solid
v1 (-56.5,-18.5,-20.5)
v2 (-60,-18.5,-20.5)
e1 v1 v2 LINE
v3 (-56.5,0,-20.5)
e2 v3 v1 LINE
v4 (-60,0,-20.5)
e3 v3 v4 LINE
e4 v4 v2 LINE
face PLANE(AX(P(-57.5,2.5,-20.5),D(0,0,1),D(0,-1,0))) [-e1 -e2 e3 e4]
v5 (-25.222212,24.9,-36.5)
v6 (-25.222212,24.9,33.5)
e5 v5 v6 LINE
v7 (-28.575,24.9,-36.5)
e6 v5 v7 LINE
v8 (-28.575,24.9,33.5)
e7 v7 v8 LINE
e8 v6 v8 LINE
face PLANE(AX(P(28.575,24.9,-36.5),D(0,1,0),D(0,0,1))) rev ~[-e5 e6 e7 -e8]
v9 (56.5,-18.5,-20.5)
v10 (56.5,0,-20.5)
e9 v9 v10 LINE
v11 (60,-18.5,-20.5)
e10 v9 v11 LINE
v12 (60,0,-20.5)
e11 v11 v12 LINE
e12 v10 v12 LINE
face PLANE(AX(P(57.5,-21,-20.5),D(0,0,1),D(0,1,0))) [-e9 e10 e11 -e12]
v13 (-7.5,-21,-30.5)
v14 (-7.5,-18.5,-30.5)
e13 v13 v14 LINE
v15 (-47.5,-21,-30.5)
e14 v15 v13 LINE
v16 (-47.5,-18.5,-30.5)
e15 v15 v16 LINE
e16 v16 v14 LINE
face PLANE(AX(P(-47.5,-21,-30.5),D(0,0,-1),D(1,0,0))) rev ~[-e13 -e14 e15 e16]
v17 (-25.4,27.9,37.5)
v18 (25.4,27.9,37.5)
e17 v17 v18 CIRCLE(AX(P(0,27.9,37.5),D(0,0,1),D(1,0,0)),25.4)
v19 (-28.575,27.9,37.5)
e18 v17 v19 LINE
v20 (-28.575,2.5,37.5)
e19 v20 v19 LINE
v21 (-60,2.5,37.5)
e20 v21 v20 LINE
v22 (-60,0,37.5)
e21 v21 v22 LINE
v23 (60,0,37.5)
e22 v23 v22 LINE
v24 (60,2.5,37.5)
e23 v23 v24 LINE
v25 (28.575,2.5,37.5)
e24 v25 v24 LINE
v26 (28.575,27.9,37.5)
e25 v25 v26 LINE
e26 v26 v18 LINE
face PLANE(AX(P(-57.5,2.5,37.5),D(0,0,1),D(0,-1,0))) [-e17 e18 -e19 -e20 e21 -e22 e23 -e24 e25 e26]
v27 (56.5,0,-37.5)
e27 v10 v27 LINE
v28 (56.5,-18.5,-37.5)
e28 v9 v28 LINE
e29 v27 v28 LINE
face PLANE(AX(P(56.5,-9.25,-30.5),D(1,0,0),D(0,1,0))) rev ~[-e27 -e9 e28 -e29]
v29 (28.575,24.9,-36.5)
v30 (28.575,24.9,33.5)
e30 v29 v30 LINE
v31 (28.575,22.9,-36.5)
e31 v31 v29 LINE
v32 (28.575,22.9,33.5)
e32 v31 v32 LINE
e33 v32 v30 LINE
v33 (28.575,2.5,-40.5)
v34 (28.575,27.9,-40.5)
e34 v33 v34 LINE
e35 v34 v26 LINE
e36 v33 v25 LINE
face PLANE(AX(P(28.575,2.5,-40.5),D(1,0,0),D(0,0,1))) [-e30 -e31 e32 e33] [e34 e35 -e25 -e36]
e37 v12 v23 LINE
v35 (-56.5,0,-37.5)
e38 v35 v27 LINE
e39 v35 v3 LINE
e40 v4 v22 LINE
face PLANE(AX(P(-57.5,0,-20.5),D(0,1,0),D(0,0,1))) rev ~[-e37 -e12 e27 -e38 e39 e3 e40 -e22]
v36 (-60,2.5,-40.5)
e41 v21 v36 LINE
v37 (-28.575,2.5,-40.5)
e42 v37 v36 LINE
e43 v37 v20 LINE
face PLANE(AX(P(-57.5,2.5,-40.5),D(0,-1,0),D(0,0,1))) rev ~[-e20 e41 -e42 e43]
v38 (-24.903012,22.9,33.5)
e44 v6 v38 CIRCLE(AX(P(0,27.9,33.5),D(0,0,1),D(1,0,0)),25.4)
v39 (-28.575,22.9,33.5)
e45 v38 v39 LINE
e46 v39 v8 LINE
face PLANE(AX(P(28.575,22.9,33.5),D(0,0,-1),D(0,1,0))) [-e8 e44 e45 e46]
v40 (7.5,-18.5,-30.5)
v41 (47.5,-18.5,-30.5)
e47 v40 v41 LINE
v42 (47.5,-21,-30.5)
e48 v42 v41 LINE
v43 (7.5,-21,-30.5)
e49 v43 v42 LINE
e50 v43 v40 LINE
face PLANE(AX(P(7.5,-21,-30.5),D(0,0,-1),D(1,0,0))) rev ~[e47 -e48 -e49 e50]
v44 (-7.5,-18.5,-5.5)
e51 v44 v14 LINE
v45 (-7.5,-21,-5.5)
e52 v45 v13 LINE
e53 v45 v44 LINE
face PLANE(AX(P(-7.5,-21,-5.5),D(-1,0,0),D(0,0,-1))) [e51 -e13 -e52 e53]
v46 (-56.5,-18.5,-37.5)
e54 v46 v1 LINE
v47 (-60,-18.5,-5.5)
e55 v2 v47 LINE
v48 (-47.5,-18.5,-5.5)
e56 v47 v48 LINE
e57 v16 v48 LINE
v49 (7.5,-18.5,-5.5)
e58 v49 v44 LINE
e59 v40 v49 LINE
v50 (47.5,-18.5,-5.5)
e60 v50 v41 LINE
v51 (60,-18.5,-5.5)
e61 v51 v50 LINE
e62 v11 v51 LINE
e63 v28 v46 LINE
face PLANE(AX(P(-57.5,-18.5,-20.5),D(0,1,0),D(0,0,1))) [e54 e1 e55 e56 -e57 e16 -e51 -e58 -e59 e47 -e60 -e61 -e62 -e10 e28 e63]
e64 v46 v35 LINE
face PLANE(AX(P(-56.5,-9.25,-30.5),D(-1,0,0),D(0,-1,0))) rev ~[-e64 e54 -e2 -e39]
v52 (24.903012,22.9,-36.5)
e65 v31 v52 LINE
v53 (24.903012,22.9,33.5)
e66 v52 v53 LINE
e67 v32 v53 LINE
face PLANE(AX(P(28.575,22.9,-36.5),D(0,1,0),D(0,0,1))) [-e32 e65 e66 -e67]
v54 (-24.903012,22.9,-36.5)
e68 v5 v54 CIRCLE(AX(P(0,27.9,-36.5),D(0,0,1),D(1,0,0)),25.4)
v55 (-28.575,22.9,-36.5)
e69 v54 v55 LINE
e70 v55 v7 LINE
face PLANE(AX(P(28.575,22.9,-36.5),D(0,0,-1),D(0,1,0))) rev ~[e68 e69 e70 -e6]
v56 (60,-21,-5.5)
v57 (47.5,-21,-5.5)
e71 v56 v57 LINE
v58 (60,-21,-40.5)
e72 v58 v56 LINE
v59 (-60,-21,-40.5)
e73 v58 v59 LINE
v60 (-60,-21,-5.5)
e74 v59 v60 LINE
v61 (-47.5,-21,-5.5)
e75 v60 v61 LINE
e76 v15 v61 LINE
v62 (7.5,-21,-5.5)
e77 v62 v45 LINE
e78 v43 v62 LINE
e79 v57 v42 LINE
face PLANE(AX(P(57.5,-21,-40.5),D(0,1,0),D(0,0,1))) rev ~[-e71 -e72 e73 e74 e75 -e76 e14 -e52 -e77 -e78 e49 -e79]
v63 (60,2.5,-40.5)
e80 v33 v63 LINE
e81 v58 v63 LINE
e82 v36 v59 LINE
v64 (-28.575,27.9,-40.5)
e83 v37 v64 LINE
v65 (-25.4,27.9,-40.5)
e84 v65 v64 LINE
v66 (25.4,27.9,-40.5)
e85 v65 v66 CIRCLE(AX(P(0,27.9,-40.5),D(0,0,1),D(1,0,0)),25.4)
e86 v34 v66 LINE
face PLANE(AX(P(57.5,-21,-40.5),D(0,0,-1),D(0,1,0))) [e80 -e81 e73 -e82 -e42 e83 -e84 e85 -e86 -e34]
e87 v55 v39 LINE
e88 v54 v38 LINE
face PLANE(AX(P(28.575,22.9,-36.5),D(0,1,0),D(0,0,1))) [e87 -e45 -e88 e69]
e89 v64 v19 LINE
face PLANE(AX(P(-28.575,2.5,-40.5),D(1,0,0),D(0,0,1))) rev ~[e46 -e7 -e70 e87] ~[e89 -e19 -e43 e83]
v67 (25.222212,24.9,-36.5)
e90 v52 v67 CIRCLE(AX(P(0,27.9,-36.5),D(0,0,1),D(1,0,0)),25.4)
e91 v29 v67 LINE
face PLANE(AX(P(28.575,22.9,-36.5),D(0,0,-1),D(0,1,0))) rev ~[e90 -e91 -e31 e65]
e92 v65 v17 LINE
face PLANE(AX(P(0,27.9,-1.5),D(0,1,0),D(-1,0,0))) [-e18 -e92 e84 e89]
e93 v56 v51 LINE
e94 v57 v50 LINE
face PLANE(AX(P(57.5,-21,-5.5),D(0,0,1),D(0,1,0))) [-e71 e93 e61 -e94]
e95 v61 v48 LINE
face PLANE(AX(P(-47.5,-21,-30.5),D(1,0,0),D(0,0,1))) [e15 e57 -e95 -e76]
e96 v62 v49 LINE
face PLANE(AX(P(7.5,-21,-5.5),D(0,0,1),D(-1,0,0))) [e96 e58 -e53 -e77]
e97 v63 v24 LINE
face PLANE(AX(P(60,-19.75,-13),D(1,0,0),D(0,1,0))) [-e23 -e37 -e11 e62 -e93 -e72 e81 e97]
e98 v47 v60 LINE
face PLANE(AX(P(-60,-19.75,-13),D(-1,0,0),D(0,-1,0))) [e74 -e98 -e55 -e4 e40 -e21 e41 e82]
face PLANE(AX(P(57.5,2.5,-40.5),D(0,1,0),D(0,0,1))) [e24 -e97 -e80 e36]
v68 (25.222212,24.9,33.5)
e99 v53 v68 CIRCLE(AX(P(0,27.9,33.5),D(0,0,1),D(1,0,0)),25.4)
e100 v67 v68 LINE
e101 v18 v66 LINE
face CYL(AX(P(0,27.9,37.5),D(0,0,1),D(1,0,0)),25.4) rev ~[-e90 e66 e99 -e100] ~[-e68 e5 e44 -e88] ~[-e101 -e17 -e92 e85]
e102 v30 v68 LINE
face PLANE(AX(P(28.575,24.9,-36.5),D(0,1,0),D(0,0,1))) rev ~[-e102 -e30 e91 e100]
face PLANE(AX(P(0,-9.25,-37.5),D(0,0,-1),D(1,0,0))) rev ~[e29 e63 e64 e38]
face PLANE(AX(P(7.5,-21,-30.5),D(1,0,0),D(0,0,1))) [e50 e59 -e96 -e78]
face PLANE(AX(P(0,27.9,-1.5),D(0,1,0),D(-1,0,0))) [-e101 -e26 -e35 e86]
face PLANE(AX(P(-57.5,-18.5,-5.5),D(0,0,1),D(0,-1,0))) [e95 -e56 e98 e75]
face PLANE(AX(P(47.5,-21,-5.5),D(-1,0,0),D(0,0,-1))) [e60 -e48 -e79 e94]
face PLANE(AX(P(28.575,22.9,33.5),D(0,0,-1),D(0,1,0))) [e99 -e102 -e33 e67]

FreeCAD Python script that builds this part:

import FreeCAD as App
import Part
import Sketcher
from FreeCAD import Vector
Q = App.Units.Quantity


def add_polygon(sketch, points):
    """Adds a closed chain of lines whose ends are joined by coincident constraints."""
    first, n = sketch.GeometryCount, len(points)
    for a, b in zip(points, points[1:] + points[:1]):
        sketch.addGeometry(Part.LineSegment(App.Vector(*a, 0), App.Vector(*b, 0)), False)
    for i in range(n):
        sketch.addConstraint(Sketcher.Constraint("Coincident", first + i, 2, first + (i + 1) % n, 1))

doc = App.newDocument("Part")
params = doc.addObject("Spreadsheet::Sheet", "Params")
for row, (alias, value) in enumerate([
    ("sketch1_width", "115 mm"),
    ("sketch1_height", "75 mm"),
    ("pad1_length", "2.5 mm"),
    ("sketch2_width", "115 mm"),
    ("sketch2_height", "23.5 mm"),
    ("pad2_length", "3 mm"),
    ("sketch3_width", "115 mm"),
    ("sketch3_width2", "10 mm"),
    ("sketch3_width3", "40 mm"),
    ("sketch3_height", "35 mm"),
    ("sketch3_height2", "25 mm"),
    ("pad3_length", "2.5 mm"),
    ("sketch4_height", "20 mm"),
    ("sketch4_width", "23.5 mm"),
    ("pad4_length", "2.5 mm"),
    ("sketch5_height", "20 mm"),
    ("sketch5_width", "23.5 mm"),
    ("pad5_length", "2.5 mm"),
    ("sketch6_height", "15 mm"),
    ("sketch6_height2", "58 mm"),
    ("sketch6_width", "2.5 mm"),
    ("pad6_length", "2.5 mm"),
    ("sketch7_height", "15 mm"),
    ("sketch7_height2", "58 mm"),
    ("sketch7_width", "2.5 mm"),
    ("pad7_length", "2.5 mm"),
    ("sketch8_height", "78 mm"),
    ("sketch8_width", "57.15 mm"),
    ("pad8_length", "25.4 mm"),
    ("sketch9_diameter", "50.8 mm"),
    ("pocket1_length", "78 mm"),
    ("sketch10_height", "20 mm"),
    ("sketch10_width", "23.5 mm"),
    ("pad9_length", "1 mm"),
    ("sketch11_height", "20 mm"),
    ("sketch11_width", "23.5 mm"),
    ("pad10_length", "1 mm"),
    ("sketch12_width", "2 mm"),
    ("sketch12_height", "70 mm"),
    ("pocket2_length", "57.15 mm"),
], start=1):
    params.set(f"A{row}", alias)
    params.set(f"B{row}", "=" + value)
    params.setAlias(f"B{row}", alias)

body = doc.addObject("PartDesign::Body", "Body")

# Sketch on XZ plane
sketch1 = body.newObject("Sketcher::SketchObject", "Sketch")
sketch1.AttachmentSupport = (doc.getObject("XZ_Plane"), [""])
sketch1.MapMode = "FlatFace"
add_polygon(sketch1, [(-57.5, 37.5), (-57.5, -37.5), (57.5, -37.5), (57.5, 37.5)])  # lines 0-3
sketch1.addConstraint([
    Sketcher.Constraint("Vertical", 0),
    Sketcher.Constraint("Horizontal", 1),
    Sketcher.Constraint("Vertical", 2),
    Sketcher.Constraint("Horizontal", 3),
    Sketcher.Constraint("Symmetric", 0, 2, 2, 2, -1, 1),
    Sketcher.Constraint("DistanceX", 1, 1, 1, 2, Q("115 mm")),
    Sketcher.Constraint("DistanceY", 0, 2, 0, 1, Q("75 mm")),
])
sketch1.setExpression("Constraints[9]", "Params.sketch1_width")
sketch1.setExpression("Constraints[10]", "Params.sketch1_height")
pad1 = body.newObject("PartDesign::Pad", "Pad")
pad1.Profile = sketch1
pad1.setExpression("Length", "Params.pad1_length")
pad1.Reversed = True

# Sketch on XY plane
sketch2 = body.newObject("Sketcher::SketchObject", "Sketch001")
sketch2.AttachmentSupport = (doc.getObject("XY_Plane"), [""])
sketch2.MapMode = "FlatFace"
sketch2.AttachmentOffset = App.Placement(Vector(0, 0, -37.5), App.Rotation())
add_polygon(sketch2, [(-57.5, -21), (-57.5, 2.5), (57.5, 2.5), (57.5, -21)])  # lines 0-3
sketch2.addConstraint([
    Sketcher.Constraint("Vertical", 0),
    Sketcher.Constraint("Horizontal", 1),
    Sketcher.Constraint("Vertical", 2),
    Sketcher.Constraint("Horizontal", 3),
    Sketcher.Constraint("DistanceX", 1, 1, 1, 2, Q("115 mm")),
    Sketcher.Constraint("DistanceY", 0, 1, 0, 2, Q("23.5 mm")),
    Sketcher.Constraint("DistanceY", 2, 2, -1, 1, Q("21 mm")),
    Sketcher.Constraint("DistanceX", 0, 2, -1, 1, Q("57.5 mm")),
])
sketch2.setExpression("Constraints[8]", "Params.sketch2_width")
sketch2.setExpression("Constraints[9]", "Params.sketch2_height")
pad2 = body.newObject("PartDesign::Pad", "Pad001")
pad2.Profile = sketch2
pad2.setExpression("Length", "Params.pad2_length")
pad2.Reversed = True

# Sketch on XZ plane
sketch3 = body.newObject("Sketcher::SketchObject", "Sketch002")
sketch3.AttachmentSupport = (doc.getObject("XZ_Plane"), [""])
sketch3.MapMode = "FlatFace"
sketch3.AttachmentOffset = App.Placement(Vector(0, 0, 21), App.Rotation())
add_polygon(sketch3, [(-57.5, -5.5), (-57.5, -40.5), (57.5, -40.5), (57.5, -5.5), (47.5, -5.5), (47.5, -30.5), (7.5, -30.5), (7.5, -5.5), (-7.5, -5.5), (-7.5, -30.5), (-47.5, -30.5), (-47.5, -5.5)])  # lines 0-11
sketch3.addConstraint([
    Sketcher.Constraint("Vertical", 0),
    Sketcher.Constraint("Horizontal", 1),
    Sketcher.Constraint("Vertical", 2),
    Sketcher.Constraint("Horizontal", 3),
    Sketcher.Constraint("Vertical", 4),
    Sketcher.Constraint("Horizontal", 5),
    Sketcher.Constraint("Vertical", 6),
    Sketcher.Constraint("Horizontal", 7),
    Sketcher.Constraint("Vertical", 8),
    Sketcher.Constraint("Horizontal", 9),
    Sketcher.Constraint("Vertical", 10),
    Sketcher.Constraint("Horizontal", 11),
    Sketcher.Constraint("Symmetric", 5, 2, 8, 2, -2),
    Sketcher.Constraint("Symmetric", 3, 2, 10, 2, -2),
    Sketcher.Constraint("Horizontal", 3, 2, 6, 2),
    Sketcher.Constraint("Equal", 3, 11),
    Sketcher.Constraint("DistanceX", 1, 1, 1, 2, Q("115 mm")),
    Sketcher.Constraint("DistanceX", 3, 2, 3, 1, Q("10 mm")),
    Sketcher.Constraint("DistanceX", 5, 2, 5, 1, Q("40 mm")),
    Sketcher.Constraint("DistanceY", 0, 2, 0, 1, Q("35 mm")),
    Sketcher.Constraint("DistanceY", 4, 2, 4, 1, Q("25 mm")),
    Sketcher.Constraint("DistanceY", 0, 2, -1, 1, Q("40.5 mm")),
])
sketch3.setExpression("Constraints[28]", "Params.sketch3_width")
sketch3.setExpression("Constraints[29]", "Params.sketch3_width2")
sketch3.setExpression("Constraints[30]", "Params.sketch3_width3")
sketch3.setExpression("Constraints[31]", "Params.sketch3_height")
sketch3.setExpression("Constraints[32]", "Params.sketch3_height2")
pad3 = body.newObject("PartDesign::Pad", "Pad002")
pad3.Profile = sketch3
pad3.setExpression("Length", "Params.pad3_length")
pad3.Reversed = True

# Sketch on YZ plane
sketch4 = body.newObject("Sketcher::SketchObject", "Sketch003")
sketch4.AttachmentSupport = (doc.getObject("YZ_Plane"), [""])
sketch4.MapMode = "FlatFace"
sketch4.AttachmentOffset = App.Placement(Vector(0, 0, -57.5), App.Rotation())
add_polygon(sketch4, [(2.5, -20.5), (2.5, -40.5), (-21, -40.5), (-21, -20.5)])  # lines 0-3
sketch4.addConstraint([
    Sketcher.Constraint("Vertical", 0),
    Sketcher.Constraint("Horizontal", 1),
    Sketcher.Constraint("Vertical", 2),
    Sketcher.Constraint("Horizontal", 3),
    Sketcher.Constraint("DistanceY", 0, 2, 0, 1, Q("20 mm")),
    Sketcher.Constraint("DistanceX", 1, 2, 1, 1, Q("23.5 mm")),
    Sketcher.Constraint("DistanceX", 1, 2, -1, 1, Q("21 mm")),
    Sketcher.Constraint("DistanceY", 0, 2, -1, 1, Q("40.5 mm")),
])
sketch4.setExpression("Constraints[8]", "Params.sketch4_height")
sketch4.setExpression("Constraints[9]", "Params.sketch4_width")
pad4 = body.newObject("PartDesign::Pad", "Pad003")
pad4.Profile = sketch4
pad4.setExpression("Length", "Params.pad4_length")
pad4.Reversed = True

# Sketch on YZ plane
sketch5 = body.newObject("Sketcher::SketchObject", "Sketch004")
sketch5.AttachmentSupport = (doc.getObject("YZ_Plane"), [""])
sketch5.MapMode = "FlatFace"
sketch5.AttachmentOffset = App.Placement(Vector(0, 0, 57.5), App.Rotation())
add_polygon(sketch5, [(-21, -20.5), (-21, -40.5), (2.5, -40.5), (2.5, -20.5)])  # lines 0-3
sketch5.addConstraint([
    Sketcher.Constraint("Vertical", 0),
    Sketcher.Constraint("Horizontal", 1),
    Sketcher.Constraint("Vertical", 2),
    Sketcher.Constraint("Horizontal", 3),
    Sketcher.Constraint("DistanceY", 0, 2, 0, 1, Q("20 mm")),
    Sketcher.Constraint("DistanceX", 1, 1, 1, 2, Q("23.5 mm")),
    Sketcher.Constraint("DistanceX", 0, 2, -1, 1, Q("21 mm")),
    Sketcher.Constraint("DistanceY", 0, 2, -1, 1, Q("40.5 mm")),
])
sketch5.setExpression("Constraints[8]", "Params.sketch5_height")
sketch5.setExpression("Constraints[9]", "Params.sketch5_width")
pad5 = body.newObject("PartDesign::Pad", "Pad004")
pad5.Profile = sketch5
pad5.setExpression("Length", "Params.pad5_length")

# Sketch on YZ plane
sketch6 = body.newObject("Sketcher::SketchObject", "Sketch005")
sketch6.AttachmentSupport = (doc.getObject("YZ_Plane"), [""])
sketch6.MapMode = "FlatFace"
sketch6.AttachmentOffset = App.Placement(Vector(0, 0, 57.5), App.Rotation())
add_polygon(sketch6, [(-21, -5.5), (-21, -20.5), (-18.5, -20.5), (-18.5, -5.5)])  # lines 0-3
add_polygon(sketch6, [(0, 37.5), (0, -20.5), (2.5, -20.5), (2.5, 37.5)])  # lines 4-7
sketch6.addConstraint([
    Sketcher.Constraint("Vertical", 0),
    Sketcher.Constraint("Horizontal", 1),
    Sketcher.Constraint("Vertical", 2),
    Sketcher.Constraint("Horizontal", 3),
    Sketcher.Constraint("Vertical", 4),
    Sketcher.Constraint("Horizontal", 5),
    Sketcher.Constraint("Vertical", 6),
    Sketcher.Constraint("Horizontal", 7),
    Sketcher.Constraint("PointOnObject", 4, 2, -2),
    Sketcher.Constraint("Horizontal", 1, 2, 4, 2),
    Sketcher.Constraint("Equal", 3, 5),
    Sketcher.Constraint("DistanceY", 0, 2, 0, 1, Q("15 mm")),
    Sketcher.Constraint("DistanceY", 4, 2, 4, 1, Q("58 mm")),
    Sketcher.Constraint("DistanceX", 1, 1, 1, 2, Q("2.5 mm")),
    Sketcher.Constraint("DistanceX", 0, 2, -1, 1, Q("21 mm")),
    Sketcher.Constraint("DistanceY", 0, 2, -1, 1, Q("20.5 mm")),
])
sketch6.setExpression("Constraints[19]", "Params.sketch6_height")
sketch6.setExpression("Constraints[20]", "Params.sketch6_height2")
sketch6.setExpression("Constraints[21]", "Params.sketch6_width")
pad6 = body.newObject("PartDesign::Pad", "Pad005")
pad6.Profile = sketch6
pad6.setExpression("Length", "Params.pad6_length")

# Sketch on YZ plane
sketch7 = body.newObject("Sketcher::SketchObject", "Sketch006")
sketch7.AttachmentSupport = (doc.getObject("YZ_Plane"), [""])
sketch7.MapMode = "FlatFace"
sketch7.AttachmentOffset = App.Placement(Vector(0, 0, -57.5), App.Rotation())
add_polygon(sketch7, [(-18.5, -5.5), (-18.5, -20.5), (-21, -20.5), (-21, -5.5)])  # lines 0-3
add_polygon(sketch7, [(2.5, 37.5), (2.5, -20.5), (0, -20.5), (0, 37.5)])  # lines 4-7
sketch7.addConstraint([
    Sketcher.Constraint("Vertical", 0),
    Sketcher.Constraint("Horizontal", 1),
    Sketcher.Constraint("Vertical", 2),
    Sketcher.Constraint("Horizontal", 3),
    Sketcher.Constraint("Vertical", 4),
    Sketcher.Constraint("Horizontal", 5),
    Sketcher.Constraint("Vertical", 6),
    Sketcher.Constraint("Horizontal", 7),
    Sketcher.Constraint("PointOnObject", 5, 2, -2),
    Sketcher.Constraint("Horizontal", 1, 2, 4, 2),
    Sketcher.Constraint("Equal", 3, 5),
    Sketcher.Constraint("DistanceY", 0, 2, 0, 1, Q("15 mm")),
    Sketcher.Constraint("DistanceY", 4, 2, 4, 1, Q("58 mm")),
    Sketcher.Constraint("DistanceX", 1, 2, 1, 1, Q("2.5 mm")),
    Sketcher.Constraint("DistanceX", 1, 2, -1, 1, Q("21 mm")),
    Sketcher.Constraint("DistanceY", 0, 2, -1, 1, Q("20.5 mm")),
])
sketch7.setExpression("Constraints[19]", "Params.sketch7_height")
sketch7.setExpression("Constraints[20]", "Params.sketch7_height2")
sketch7.setExpression("Constraints[21]", "Params.sketch7_width")
pad7 = body.newObject("PartDesign::Pad", "Pad006")
pad7.Profile = sketch7
pad7.setExpression("Length", "Params.pad7_length")
pad7.Reversed = True

# Sketch on XZ plane
sketch8 = body.newObject("Sketcher::SketchObject", "Sketch007")
sketch8.AttachmentSupport = (doc.getObject("XZ_Plane"), [""])
sketch8.MapMode = "FlatFace"
sketch8.AttachmentOffset = App.Placement(Vector(0, 0, -2.5), App.Rotation())
add_polygon(sketch8, [(28.575, 37.5), (28.575, -40.5), (-28.575, -40.5), (-28.575, 37.5)])  # lines 0-3
sketch8.addConstraint([
    Sketcher.Constraint("Vertical", 0),
    Sketcher.Constraint("Horizontal", 1),
    Sketcher.Constraint("Vertical", 2),
    Sketcher.Constraint("Horizontal", 3),
    Sketcher.Constraint("DistanceY", 0, 2, 0, 1, Q("78 mm")),
    Sketcher.Constraint("DistanceX", 1, 2, 1, 1, Q("57.15 mm")),
    Sketcher.Constraint("DistanceY", 0, 2, -1, 1, Q("40.5 mm")),
    Sketcher.Constraint("DistanceX", -1, 1, 0, 2, Q("28.575 mm")),
])
sketch8.setExpression("Constraints[8]", "Params.sketch8_height")
sketch8.setExpression("Constraints[9]", "Params.sketch8_width")
pad8 = body.newObject("PartDesign::Pad", "Pad007")
pad8.Profile = sketch8
pad8.setExpression("Length", "Params.pad8_length")
pad8.Reversed = True

# Sketch on XY plane
sketch9 = body.newObject("Sketcher::SketchObject", "Sketch008")
sketch9.AttachmentSupport = (doc.getObject("XY_Plane"), [""])
sketch9.MapMode = "FlatFace"
sketch9.AttachmentOffset = App.Placement(Vector(0, 0, 37.5), App.Rotation())
sketch9.addGeometry(Part.Circle(Vector(0, 27.9, 0), Vector(0, 0, 1), 25.4), False)
sketch9.addConstraint([
    Sketcher.Constraint("PointOnObject", 0, 3, -2),
    Sketcher.Constraint("Diameter", 0, Q("50.8 mm")),
    Sketcher.Constraint("DistanceY", -1, 1, 0, 3, Q("27.9 mm")),
])
sketch9.setExpression("Constraints[1]", "Params.sketch9_diameter")
pocket1 = body.newObject("PartDesign::Pocket", "Pocket")
pocket1.Profile = sketch9
pocket1.setExpression("Length", "Params.pocket1_length")

# Sketch on YZ plane
sketch10 = body.newObject("Sketcher::SketchObject", "Sketch009")
sketch10.AttachmentSupport = (doc.getObject("YZ_Plane"), [""])
sketch10.MapMode = "FlatFace"
sketch10.AttachmentOffset = App.Placement(Vector(0, 0, -57.5), App.Rotation())
add_polygon(sketch10, [(2.5, -20.5), (2.5, -40.5), (-21, -40.5), (-21, -20.5)])  # lines 0-3
sketch10.addConstraint([
    Sketcher.Constraint("Vertical", 0),
    Sketcher.Constraint("Horizontal", 1),
    Sketcher.Constraint("Vertical", 2),
    Sketcher.Constraint("Horizontal", 3),
    Sketcher.Constraint("DistanceY", 0, 2, 0, 1, Q("20 mm")),
    Sketcher.Constraint("DistanceX", 1, 2, 1, 1, Q("23.5 mm")),
    Sketcher.Constraint("DistanceX", 1, 2, -1, 1, Q("21 mm")),
    Sketcher.Constraint("DistanceY", 0, 2, -1, 1, Q("40.5 mm")),
])
sketch10.setExpression("Constraints[8]", "Params.sketch10_height")
sketch10.setExpression("Constraints[9]", "Params.sketch10_width")
pad9 = body.newObject("PartDesign::Pad", "Pad008")
pad9.Profile = sketch10
pad9.setExpression("Length", "Params.pad9_length")

# Sketch on YZ plane
sketch11 = body.newObject("Sketcher::SketchObject", "Sketch010")
sketch11.AttachmentSupport = (doc.getObject("YZ_Plane"), [""])
sketch11.MapMode = "FlatFace"
sketch11.AttachmentOffset = App.Placement(Vector(0, 0, 57.5), App.Rotation())
add_polygon(sketch11, [(-21, -20.5), (-21, -40.5), (2.5, -40.5), (2.5, -20.5)])  # lines 0-3
sketch11.addConstraint([
    Sketcher.Constraint("Vertical", 0),
    Sketcher.Constraint("Horizontal", 1),
    Sketcher.Constraint("Vertical", 2),
    Sketcher.Constraint("Horizontal", 3),
    Sketcher.Constraint("DistanceY", 0, 2, 0, 1, Q("20 mm")),
    Sketcher.Constraint("DistanceX", 1, 1, 1, 2, Q("23.5 mm")),
    Sketcher.Constraint("DistanceX", 0, 2, -1, 1, Q("21 mm")),
    Sketcher.Constraint("DistanceY", 0, 2, -1, 1, Q("40.5 mm")),
])
sketch11.setExpression("Constraints[8]", "Params.sketch11_height")
sketch11.setExpression("Constraints[9]", "Params.sketch11_width")
pad10 = body.newObject("PartDesign::Pad", "Pad009")
pad10.Profile = sketch11
pad10.setExpression("Length", "Params.pad10_length")
pad10.Reversed = True

# Sketch on YZ plane
sketch12 = body.newObject("Sketcher::SketchObject", "Sketch011")
sketch12.AttachmentSupport = (doc.getObject("YZ_Plane"), [""])
sketch12.MapMode = "FlatFace"
sketch12.AttachmentOffset = App.Placement(Vector(0, 0, 28.575), App.Rotation())
add_polygon(sketch12, [(22.9, 33.5), (22.9, -36.5), (24.9, -36.5), (24.9, 33.5)])  # lines 0-3
sketch12.addConstraint([
    Sketcher.Constraint("Vertical", 0),
    Sketcher.Constraint("Horizontal", 1),
    Sketcher.Constraint("Vertical", 2),
    Sketcher.Constraint("Horizontal", 3),
    Sketcher.Constraint("DistanceX", 1, 1, 1, 2, Q("2 mm")),
    Sketcher.Constraint("DistanceY", 0, 2, 0, 1, Q("70 mm")),
    Sketcher.Constraint("DistanceX", -1, 1, 0, 2, Q("22.9 mm")),
    Sketcher.Constraint("DistanceY", 0, 2, -1, 1, Q("36.5 mm")),
])
sketch12.setExpression("Constraints[8]", "Params.sketch12_width")
sketch12.setExpression("Constraints[9]", "Params.sketch12_height")
pocket2 = body.newObject("PartDesign::Pocket", "Pocket001")
pocket2.Profile = sketch12
pocket2.setExpression("Length", "Params.pocket2_length")

doc.recompute()
